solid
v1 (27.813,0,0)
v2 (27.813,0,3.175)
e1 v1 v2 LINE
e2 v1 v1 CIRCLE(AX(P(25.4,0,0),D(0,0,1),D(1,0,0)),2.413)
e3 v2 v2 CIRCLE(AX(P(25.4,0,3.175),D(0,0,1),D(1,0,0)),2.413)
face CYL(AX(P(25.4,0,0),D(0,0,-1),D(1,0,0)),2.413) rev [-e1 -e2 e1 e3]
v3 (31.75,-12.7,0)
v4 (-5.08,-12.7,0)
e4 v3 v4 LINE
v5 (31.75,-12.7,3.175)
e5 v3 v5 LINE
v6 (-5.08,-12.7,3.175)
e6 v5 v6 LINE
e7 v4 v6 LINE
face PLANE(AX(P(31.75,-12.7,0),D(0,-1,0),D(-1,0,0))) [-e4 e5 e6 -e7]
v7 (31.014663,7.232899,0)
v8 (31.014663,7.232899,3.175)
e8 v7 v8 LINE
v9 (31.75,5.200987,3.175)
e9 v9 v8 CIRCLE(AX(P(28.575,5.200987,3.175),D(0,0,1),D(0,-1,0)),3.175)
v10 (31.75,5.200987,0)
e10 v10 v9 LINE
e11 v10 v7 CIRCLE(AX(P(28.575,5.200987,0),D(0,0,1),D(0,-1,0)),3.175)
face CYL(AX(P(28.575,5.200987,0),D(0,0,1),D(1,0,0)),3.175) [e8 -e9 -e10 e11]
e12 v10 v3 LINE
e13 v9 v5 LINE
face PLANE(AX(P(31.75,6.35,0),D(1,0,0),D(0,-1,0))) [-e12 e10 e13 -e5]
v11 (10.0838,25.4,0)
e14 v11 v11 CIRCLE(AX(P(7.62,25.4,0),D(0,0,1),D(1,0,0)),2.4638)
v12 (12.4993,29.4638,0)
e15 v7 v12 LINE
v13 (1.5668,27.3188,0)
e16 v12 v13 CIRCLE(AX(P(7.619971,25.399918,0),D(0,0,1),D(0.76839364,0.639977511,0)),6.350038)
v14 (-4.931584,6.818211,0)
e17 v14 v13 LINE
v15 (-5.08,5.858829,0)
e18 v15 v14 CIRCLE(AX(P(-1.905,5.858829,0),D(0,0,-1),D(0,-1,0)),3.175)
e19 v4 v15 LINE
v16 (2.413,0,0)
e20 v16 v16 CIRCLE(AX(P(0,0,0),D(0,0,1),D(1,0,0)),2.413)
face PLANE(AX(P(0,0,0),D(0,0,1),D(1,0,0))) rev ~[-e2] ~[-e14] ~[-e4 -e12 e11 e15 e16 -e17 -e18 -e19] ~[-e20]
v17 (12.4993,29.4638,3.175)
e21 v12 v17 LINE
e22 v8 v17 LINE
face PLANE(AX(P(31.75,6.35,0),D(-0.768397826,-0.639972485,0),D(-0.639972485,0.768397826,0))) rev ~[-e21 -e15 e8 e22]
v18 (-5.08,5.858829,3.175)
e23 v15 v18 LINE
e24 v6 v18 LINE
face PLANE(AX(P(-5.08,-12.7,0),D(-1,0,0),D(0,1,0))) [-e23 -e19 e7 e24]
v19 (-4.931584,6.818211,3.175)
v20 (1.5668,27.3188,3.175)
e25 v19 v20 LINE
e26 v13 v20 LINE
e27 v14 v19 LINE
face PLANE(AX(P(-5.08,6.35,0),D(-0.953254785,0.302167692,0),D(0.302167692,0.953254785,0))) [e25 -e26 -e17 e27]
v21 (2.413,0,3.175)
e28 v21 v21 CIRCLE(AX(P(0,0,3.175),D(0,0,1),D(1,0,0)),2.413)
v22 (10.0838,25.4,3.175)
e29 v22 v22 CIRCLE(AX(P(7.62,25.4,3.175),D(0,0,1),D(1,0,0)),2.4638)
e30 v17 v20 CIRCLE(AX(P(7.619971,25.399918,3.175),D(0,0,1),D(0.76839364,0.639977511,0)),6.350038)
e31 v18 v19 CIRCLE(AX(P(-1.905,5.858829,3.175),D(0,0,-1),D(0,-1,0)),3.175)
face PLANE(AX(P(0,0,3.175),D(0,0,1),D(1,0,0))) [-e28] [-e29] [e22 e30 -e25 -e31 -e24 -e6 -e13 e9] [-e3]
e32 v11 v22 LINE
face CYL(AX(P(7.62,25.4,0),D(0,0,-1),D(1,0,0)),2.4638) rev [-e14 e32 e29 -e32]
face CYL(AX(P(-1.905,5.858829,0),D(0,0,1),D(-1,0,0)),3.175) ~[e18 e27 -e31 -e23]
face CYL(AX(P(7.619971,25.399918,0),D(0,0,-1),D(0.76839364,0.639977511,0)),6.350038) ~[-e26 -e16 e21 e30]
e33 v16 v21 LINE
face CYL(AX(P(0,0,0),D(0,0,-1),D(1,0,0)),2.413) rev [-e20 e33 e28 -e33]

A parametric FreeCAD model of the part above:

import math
import FreeCAD as App
import Part
import Sketcher
Q = App.Units.Quantity


def edges_at(feature, points):
    """Names of the edges that pass closest to the given points."""
    edges = feature.Shape.Edges
    near = lambda p: min(range(len(edges)), key=lambda i: edges[i].distToShape(Part.Vertex(*p))[0])
    return sorted({f"Edge{near(p) + 1}" for p in points})

doc = App.newDocument("Part")
params = doc.addObject("Spreadsheet::Sheet", "Params")
for row, (alias, value) in enumerate([
    ("sketch1_diameter", "0.19 in"),
    ("sketch1_radius", "0.25 in"),
    ("sketch1_diameter2", "0.194 in"),
    ("sketch1_height", "0.75 in"),
    ("pad1_length", "0.125 in"),
    ("fillet_radius", "0.125 in"),
], start=1):
    params.set(f"A{row}", alias)
    params.set(f"B{row}", "=" + value)
    params.setAlias(f"B{row}", alias)

body = doc.addObject("PartDesign::Body", "Body")

# Sketch on XY plane
sketch1 = doc.addObject("Sketcher::SketchObject", "Sketch")
body.addObject(sketch1)
sketch1.AttachmentSupport = (doc.XY_Plane, [""])
sketch1.MapMode = "FlatFace"
sketch1.addGeometry(Part.LineSegment(App.Vector(31.75, -12.7, 0), App.Vector(31.75, 6.35, 0)), False)
sketch1.addGeometry(Part.LineSegment(App.Vector(31.75, 6.35, 0), App.Vector(12.4993, 29.4638, 0)), False)
sketch1.addGeometry(Part.ArcOfCircle(Part.Circle(App.Vector(7.62, 25.4, 0), App.Vector(0, 0, 1), 6.349964), math.radians(39.789744), math.radians(162.411939)), False)
sketch1.addGeometry(Part.LineSegment(App.Vector(1.5668, 27.3188, 0), App.Vector(-5.08, 6.35, 0)), False)
sketch1.addGeometry(Part.LineSegment(App.Vector(-5.08, 6.35, 0), App.Vector(-5.08, -12.7, 0)), False)
sketch1.addGeometry(Part.LineSegment(App.Vector(-5.08, -12.7, 0), App.Vector(31.75, -12.7, 0)), False)
sketch1.addGeometry(Part.Circle(App.Vector(0, 0, 0), App.Vector(0, 0, 1), 2.413), False)
sketch1.addGeometry(Part.Circle(App.Vector(25.4, 0, 0), App.Vector(0, 0, 1), 2.413), False)
sketch1.addGeometry(Part.Circle(App.Vector(7.62, 25.4, 0), App.Vector(0, 0, 1), 2.4638), False)
sketch1.addConstraint(Sketcher.Constraint("Coincident", 0, 2, 1, 1))
sketch1.addConstraint(Sketcher.Constraint("Tangent", 1, 2, 2, 1))
sketch1.addConstraint(Sketcher.Constraint("Tangent", 2, 2, 3, 1))
sketch1.addConstraint(Sketcher.Constraint("Coincident", 3, 2, 4, 1))
sketch1.addConstraint(Sketcher.Constraint("Coincident", 4, 2, 5, 1))
sketch1.addConstraint(Sketcher.Constraint("Coincident", 5, 2, 0, 1))
sketch1.addConstraint(Sketcher.Constraint("Vertical", 0))
sketch1.addConstraint(Sketcher.Constraint("Vertical", 4))
sketch1.addConstraint(Sketcher.Constraint("Horizontal", 5))
sketch1.addConstraint(Sketcher.Constraint("Coincident", 6, 3, -1, 1))
sketch1.addConstraint(Sketcher.Constraint("Coincident", 8, 3, 2, 3))
sketch1.addConstraint(Sketcher.Constraint("Equal", 6, 7))
sketch1.addConstraint(Sketcher.Constraint("PointOnObject", 7, 3, -1))
sketch1.addConstraint(Sketcher.Constraint("Horizontal", 0, 2, 3, 2))
sketch1.addConstraint(Sketcher.Constraint("Diameter", 6, Q("0.19 in")))
sketch1.addConstraint(Sketcher.Constraint("Radius", 2, Q("0.25 in")))
sketch1.addConstraint(Sketcher.Constraint("Diameter", 8, Q("0.194 in")))
sketch1.addConstraint(Sketcher.Constraint("DistanceY", -1, 1, 2, 3, Q("1 in")))
sketch1.addConstraint(Sketcher.Constraint("DistanceX", -1, 1, 7, 3, Q("1 in")))
sketch1.addConstraint(Sketcher.Constraint("DistanceY", 0, 1, 0, 2, Q("0.75 in")))
sketch1.addConstraint(Sketcher.Constraint("DistanceX", 3, 2, -1, 1, Q("0.2 in")))
sketch1.addConstraint(Sketcher.Constraint("DistanceY", 4, 2, -1, 1, Q("0.5 in")))
sketch1.addConstraint(Sketcher.Constraint("DistanceX", 3, 2, 2, 3, Q("0.5 in")))
sketch1.addConstraint(Sketcher.Constraint("DistanceX", 7, 3, 0, 2, Q("0.25 in")))
sketch1.setExpression("Constraints[14]", "Params.sketch1_diameter")
sketch1.setExpression("Constraints[15]", "Params.sketch1_radius")
sketch1.setExpression("Constraints[16]", "Params.sketch1_diameter2")
sketch1.setExpression("Constraints[19]", "Params.sketch1_height")
pad1 = doc.addObject("PartDesign::Pad", "Pad")
body.addObject(pad1)
pad1.Profile = sketch1
pad1.setExpression("Length", "Params.pad1_length")
doc.recompute()

fillet = doc.addObject("PartDesign::Fillet", "Fillet")
body.addObject(fillet)
fillet.Base = (pad1, edges_at(pad1, [(31.75, 6.35, 1.587), (-5.08, 6.35, 1.587)]))
fillet.setExpression("Radius", "Params.fillet_radius")

doc.recompute()
